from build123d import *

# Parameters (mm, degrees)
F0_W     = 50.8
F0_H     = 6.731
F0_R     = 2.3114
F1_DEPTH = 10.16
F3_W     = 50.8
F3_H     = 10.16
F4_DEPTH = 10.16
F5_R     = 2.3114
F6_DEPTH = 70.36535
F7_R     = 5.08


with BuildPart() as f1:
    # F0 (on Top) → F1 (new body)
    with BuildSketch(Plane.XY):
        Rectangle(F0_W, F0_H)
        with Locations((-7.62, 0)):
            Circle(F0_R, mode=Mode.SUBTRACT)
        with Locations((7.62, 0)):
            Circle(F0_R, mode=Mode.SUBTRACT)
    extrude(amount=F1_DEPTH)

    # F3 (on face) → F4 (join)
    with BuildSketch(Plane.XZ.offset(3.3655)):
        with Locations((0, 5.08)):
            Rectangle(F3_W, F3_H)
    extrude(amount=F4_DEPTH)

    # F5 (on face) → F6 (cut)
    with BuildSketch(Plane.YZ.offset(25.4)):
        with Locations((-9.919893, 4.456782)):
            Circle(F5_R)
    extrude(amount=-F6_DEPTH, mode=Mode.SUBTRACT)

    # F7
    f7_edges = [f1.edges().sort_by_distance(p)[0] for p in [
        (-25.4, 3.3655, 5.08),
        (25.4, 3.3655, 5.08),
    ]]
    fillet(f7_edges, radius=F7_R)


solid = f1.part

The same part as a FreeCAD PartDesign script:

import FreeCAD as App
import Part
import Sketcher
Q = App.Units.Quantity


def edges_at(feature, points):
    """Names of the edges that pass closest to the given points."""
    edges = feature.Shape.Edges
    near = lambda p: min(range(len(edges)), key=lambda i: edges[i].distToShape(Part.Vertex(*p))[0])
    return sorted({f"Edge{near(p) + 1}" for p in points})

doc = App.newDocument("Part")
body = doc.addObject("PartDesign::Body", "Body")

sketch1 = body.newObject("Sketcher::SketchObject", "Sketch")
sketch1.AttachmentSupport = (doc.getObject("XY_Plane"), [""])
sketch1.MapMode = "FlatFace"
sketch1.addGeometry([
    Part.LineSegment(App.Vector(-25.4, 3.4, 0), App.Vector(-25.4, -3.4, 0)),
    Part.LineSegment(App.Vector(-25.4, -3.4, 0), App.Vector(25.4, -3.4, 0)),
    Part.LineSegment(App.Vector(25.4, -3.4, 0), App.Vector(25.4, 3.4, 0)),
    Part.LineSegment(App.Vector(25.4, 3.4, 0), App.Vector(-25.4, 3.4, 0)),
    Part.Circle(App.Vector(-7.6, 0, 0), App.Vector(0, 0, 1), 2.3),
    Part.Circle(App.Vector(7.6, 0, 0), App.Vector(0, 0, 1), 2.3),
], False)
sketch1.addConstraint([
    Sketcher.Constraint("Coincident", 0, 2, 1, 1),
    Sketcher.Constraint("Coincident", 1, 2, 2, 1),
    Sketcher.Constraint("Coincident", 2, 2, 3, 1),
    Sketcher.Constraint("Coincident", 3, 2, 0, 1),
    Sketcher.Constraint("Vertical", 0),
    Sketcher.Constraint("Horizontal", 1),
    Sketcher.Constraint("Vertical", 2),
    Sketcher.Constraint("Horizontal", 3),
    Sketcher.Constraint("Equal", 4, 5),
    Sketcher.Constraint("Symmetric", 4, 3, 5, 3, -1, 1),
    Sketcher.Constraint("Symmetric", 0, 2, 2, 2, -1, 1),
    Sketcher.Constraint("PointOnObject", 4, 3, -1),
    Sketcher.Constraint("DistanceX", 1, 1, 1, 2, Q("2 in")),
    Sketcher.Constraint("Diameter", 4, Q("0.182 in")),
    Sketcher.Constraint("DistanceX", 4, 3, -1, 1, Q("0.3 in")),
    Sketcher.Constraint("DistanceY", 0, 2, 0, 1, Q("0.265 in")),
])
pad1 = body.newObject("PartDesign::Pad", "Pad")
pad1.Profile = sketch1
pad1.Length = Q("0.4 in")

sketch2 = body.newObject("Sketcher::SketchObject", "Sketch001")
sketch2.AttachmentSupport = (doc.getObject("XZ_Plane"), [""])
sketch2.MapMode = "FlatFace"
sketch2.AttachmentOffset = App.Placement(App.Vector(0, 0, 0.1325 * 25.4), App.Rotation())
sketch2.addGeometry([
    Part.LineSegment(App.Vector(-25, 10, 0), App.Vector(-25, 0, 0)),
    Part.LineSegment(App.Vector(-25, 0, 0), App.Vector(25, 0, 0)),
    Part.LineSegment(App.Vector(25, 0, 0), App.Vector(25, 10, 0)),
    Part.LineSegment(App.Vector(25, 10, 0), App.Vector(-25, 10, 0)),
], False)
sketch2.addConstraint([
    Sketcher.Constraint("Coincident", 0, 2, 1, 1),
    Sketcher.Constraint("Coincident", 1, 2, 2, 1),
    Sketcher.Constraint("Coincident", 2, 2, 3, 1),
    Sketcher.Constraint("Coincident", 3, 2, 0, 1),
    Sketcher.Constraint("Vertical", 0),
    Sketcher.Constraint("Horizontal", 1),
    Sketcher.Constraint("Vertical", 2),
    Sketcher.Constraint("Horizontal", 3),
    Sketcher.Constraint("Symmetric", 0, 2, 1, 2, -1, 1),
    Sketcher.Constraint("DistanceX", 1, 1, 1, 2, Q("2 in")),
    Sketcher.Constraint("DistanceY", 0, 2, 0, 1, Q("0.4 in")),
])
pad2 = body.newObject("PartDesign::Pad", "Pad001")
pad2.Profile = sketch2
pad2.Length = Q("0.4 in")

sketch3 = body.newObject("Sketcher::SketchObject", "Sketch002")
sketch3.AttachmentSupport = (doc.getObject("YZ_Plane"), [""])
sketch3.MapMode = "FlatFace"
sketch3.AttachmentOffset = App.Placement(App.Vector(0, 0, 1 * 25.4), App.Rotation())
sketch3.addGeometry(Part.Circle(App.Vector(-9.9, 4.5, 0), App.Vector(0, 0, 1), 2.3), False)
sketch3.addConstraint([
    Sketcher.Constraint("Diameter", 0, Q("0.182 in")),
    Sketcher.Constraint("DistanceY", -1, 1, 0, 3, 4.456782),
    Sketcher.Constraint("DistanceX", 0, 3, -1, 1, 9.919893),
])
pocket1 = body.newObject("PartDesign::Pocket", "Pocket")
pocket1.Profile = sketch3
pocket1.Length = 70.36535
doc.recompute()

fillet = body.newObject("PartDesign::Fillet", "Fillet")
fillet.Base = (pocket1, edges_at(pocket1, [(-25.4, 3.365, 5.08), (25.4, 3.365, 5.08)]))
fillet.Radius = Q("0.2 in")

doc.recompute()
